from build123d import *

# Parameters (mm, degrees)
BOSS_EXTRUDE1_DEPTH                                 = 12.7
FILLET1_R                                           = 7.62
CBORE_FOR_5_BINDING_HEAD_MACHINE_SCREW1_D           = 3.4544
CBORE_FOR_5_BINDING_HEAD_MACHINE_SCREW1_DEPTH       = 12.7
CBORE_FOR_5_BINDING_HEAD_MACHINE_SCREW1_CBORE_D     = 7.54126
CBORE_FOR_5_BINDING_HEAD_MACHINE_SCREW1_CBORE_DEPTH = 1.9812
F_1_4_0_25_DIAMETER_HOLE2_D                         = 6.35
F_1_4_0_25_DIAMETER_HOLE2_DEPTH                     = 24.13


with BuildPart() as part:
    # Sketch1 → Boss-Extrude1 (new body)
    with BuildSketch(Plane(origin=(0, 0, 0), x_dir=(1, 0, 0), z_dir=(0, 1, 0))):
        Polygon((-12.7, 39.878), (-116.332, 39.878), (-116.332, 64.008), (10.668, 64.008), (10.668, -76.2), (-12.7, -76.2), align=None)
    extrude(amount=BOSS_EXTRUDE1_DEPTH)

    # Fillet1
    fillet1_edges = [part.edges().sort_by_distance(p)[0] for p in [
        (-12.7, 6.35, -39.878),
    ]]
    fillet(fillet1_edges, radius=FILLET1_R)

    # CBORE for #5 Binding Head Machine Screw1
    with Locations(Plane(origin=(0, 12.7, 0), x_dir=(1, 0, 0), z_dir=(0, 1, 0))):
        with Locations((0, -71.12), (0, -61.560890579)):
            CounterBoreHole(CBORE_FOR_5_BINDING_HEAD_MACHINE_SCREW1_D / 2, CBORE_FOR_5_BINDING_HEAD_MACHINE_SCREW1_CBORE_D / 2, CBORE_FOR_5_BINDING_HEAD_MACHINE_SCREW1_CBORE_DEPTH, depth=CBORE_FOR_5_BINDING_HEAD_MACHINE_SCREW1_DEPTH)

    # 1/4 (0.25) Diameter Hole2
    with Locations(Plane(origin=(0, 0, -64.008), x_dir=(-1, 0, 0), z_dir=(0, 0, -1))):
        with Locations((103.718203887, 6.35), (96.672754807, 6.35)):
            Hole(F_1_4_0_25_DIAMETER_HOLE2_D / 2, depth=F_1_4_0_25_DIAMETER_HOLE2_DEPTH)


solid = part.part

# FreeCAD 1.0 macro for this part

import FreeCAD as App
import Part
import Sketcher

V = App.Vector
Q = App.Units.Quantity


def edges_at(feature, points):
    """Names of the edges that pass closest to the given points."""
    edges = feature.Shape.Edges
    near = lambda p: min(range(len(edges)), key=lambda i: edges[i].distToShape(Part.Vertex(*p))[0])
    return sorted({f"Edge{near(p) + 1}" for p in points})

doc = App.newDocument("Part")
body = doc.addObject("PartDesign::Body", "Body")

# Sketch on XZ plane
sketch1 = body.newObject("Sketcher::SketchObject", "Sketch")
sketch1.AttachmentSupport = (doc.getObject("XZ_Plane"), [""])
sketch1.MapMode = "FlatFace"
sketch1.addGeometry(Part.LineSegment(V(-116, -40, 0), V(-13, -40, 0)), False)
sketch1.addGeometry(Part.LineSegment(V(-13, -40, 0), V(-13, 76, 0)), False)
sketch1.addGeometry(Part.LineSegment(V(-13, 76, 0), V(11, 76, 0)), False)
sketch1.addGeometry(Part.LineSegment(V(11, 76, 0), V(11, -64, 0)), False)
sketch1.addGeometry(Part.LineSegment(V(11, -64, 0), V(-116, -64, 0)), False)
sketch1.addGeometry(Part.LineSegment(V(-116, -64, 0), V(-116, -40, 0)), False)
sketch1.addConstraint(Sketcher.Constraint("Coincident", 0, 2, 1, 1))
sketch1.addConstraint(Sketcher.Constraint("Coincident", 1, 2, 2, 1))
sketch1.addConstraint(Sketcher.Constraint("Coincident", 2, 2, 3, 1))
sketch1.addConstraint(Sketcher.Constraint("Coincident", 3, 2, 4, 1))
sketch1.addConstraint(Sketcher.Constraint("Coincident", 4, 2, 5, 1))
sketch1.addConstraint(Sketcher.Constraint("Coincident", 5, 2, 0, 1))
sketch1.addConstraint(Sketcher.Constraint("Horizontal", 0))
sketch1.addConstraint(Sketcher.Constraint("Vertical", 1))
sketch1.addConstraint(Sketcher.Constraint("Horizontal", 2))
sketch1.addConstraint(Sketcher.Constraint("Vertical", 3))
sketch1.addConstraint(Sketcher.Constraint("Horizontal", 4))
sketch1.addConstraint(Sketcher.Constraint("Vertical", 5))
sketch1.addConstraint(Sketcher.Constraint("DistanceX", 4, 2, 4, 1, Q("5 in")))
sketch1.addConstraint(Sketcher.Constraint("DistanceY", -1, 1, 1, 2, Q("3 in")))
sketch1.addConstraint(Sketcher.Constraint("DistanceX", 0, 1, 0, 2, Q("4.08 in")))
sketch1.addConstraint(Sketcher.Constraint("DistanceY", 1, 1, 1, 2, Q("4.57 in")))
sketch1.addConstraint(Sketcher.Constraint("DistanceY", 3, 2, 3, 1, Q("5.52 in")))
sketch1.addConstraint(Sketcher.Constraint("DistanceX", 0, 2, -1, 1, Q("0.5 in")))
pad1 = body.newObject("PartDesign::Pad", "Pad")
pad1.Profile = sketch1
pad1.Length = Q("0.5 in")
pad1.Reversed = True
doc.recompute()

fillet = body.newObject("PartDesign::Fillet", "Fillet")
fillet.Base = (pad1, edges_at(pad1, [(-12.7, 6.35, -39.878)]))
fillet.Radius = Q("0.3 in")

# Sketch on XZ plane
sketch2 = body.newObject("Sketcher::SketchObject", "Sketch001")
sketch2.AttachmentSupport = (doc.getObject("XZ_Plane"), [""])
sketch2.MapMode = "FlatFace"
sketch2.AttachmentOffset = App.Placement(V(0, 0, -0.5 * 25.4), App.Rotation())
sketch2.addGeometry(Part.Circle(V(0, 71.1, 0), V(0, 0, 1), 1.7), False)
sketch2.addGeometry(Part.Circle(V(0, 61.6, 0), V(0, 0, 1), 1.7), False)
sketch2.addConstraint(Sketcher.Constraint("Equal", 0, 1))
sketch2.addConstraint(Sketcher.Constraint("PointOnObject", 0, 3, -2))
sketch2.addConstraint(Sketcher.Constraint("PointOnObject", 1, 3, -2))
sketch2.addConstraint(Sketcher.Constraint("Diameter", 0, Q("0.136 in")))
sketch2.addConstraint(Sketcher.Constraint("DistanceY", -1, 1, 0, 3, Q("2.8 in")))
sketch2.addConstraint(Sketcher.Constraint("DistanceY", -1, 1, 1, 3, Q("61.560891 mm")))
doc.recompute()
hole = body.newObject("PartDesign::Hole", "Hole")
hole.Profile = sketch2
hole.ThreadType = "None"
hole.Diameter = Q("0.136 in")
hole.DepthType = "Dimension"
hole.Depth = Q("0.5 in")
hole.DrillPoint = "Flat"
hole.HoleCutType = "Counterbore"
hole.HoleCutDiameter = Q("0.2969 in")
hole.HoleCutDepth = Q("0.078 in")
hole.Reversed = True

# Sketch on XY plane
sketch3 = body.newObject("Sketcher::SketchObject", "Sketch002")
sketch3.AttachmentSupport = (doc.getObject("XY_Plane"), [""])
sketch3.MapMode = "FlatFace"
sketch3.AttachmentOffset = App.Placement(V(0, 0, -2.52 * 25.4), App.Rotation())
sketch3.addGeometry(Part.Circle(V(-103.7, 6.3, 0), V(0, 0, 1), 3.2), False)
sketch3.addGeometry(Part.Circle(V(-96.7, 6.3, 0), V(0, 0, 1), 3.2), False)
sketch3.addConstraint(Sketcher.Constraint("Equal", 0, 1))
sketch3.addConstraint(Sketcher.Constraint("Horizontal", 0, 3, 1, 3))
sketch3.addConstraint(Sketcher.Constraint("Diameter", 0, Q("0.25 in")))
sketch3.addConstraint(Sketcher.Constraint("DistanceY", -1, 1, 0, 3, Q("0.25 in")))
sketch3.addConstraint(Sketcher.Constraint("DistanceX", 0, 3, 1, 3, Q("7.045449 mm")))
sketch3.addConstraint(Sketcher.Constraint("DistanceX", 0, 3, -1, 1, Q("103.718204 mm")))
doc.recompute()
hole2 = body.newObject("PartDesign::Hole", "Hole001")
hole2.Profile = sketch3
hole2.ThreadType = "None"
hole2.Diameter = Q("0.25 in")
hole2.DepthType = "Dimension"
hole2.Depth = Q("0.95 in")
hole2.DrillPoint = "Flat"
hole2.Reversed = True

doc.recompute()
